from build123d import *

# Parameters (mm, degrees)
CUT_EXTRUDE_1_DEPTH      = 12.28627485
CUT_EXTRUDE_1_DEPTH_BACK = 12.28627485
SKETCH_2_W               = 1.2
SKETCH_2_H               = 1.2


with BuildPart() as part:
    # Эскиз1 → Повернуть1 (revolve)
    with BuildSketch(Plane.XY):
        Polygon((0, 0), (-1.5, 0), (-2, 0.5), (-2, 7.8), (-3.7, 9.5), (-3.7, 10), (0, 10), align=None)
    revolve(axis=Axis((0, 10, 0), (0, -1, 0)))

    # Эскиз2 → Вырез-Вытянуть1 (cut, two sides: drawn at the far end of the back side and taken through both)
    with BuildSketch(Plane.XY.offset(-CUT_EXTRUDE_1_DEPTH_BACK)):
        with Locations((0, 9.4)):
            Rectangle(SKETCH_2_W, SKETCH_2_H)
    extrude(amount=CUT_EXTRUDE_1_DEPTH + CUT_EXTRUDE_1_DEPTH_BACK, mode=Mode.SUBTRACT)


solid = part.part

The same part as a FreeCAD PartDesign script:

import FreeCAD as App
import Part
import Sketcher

V = App.Vector
Q = App.Units.Quantity


def add_polygon(sketch, points):
    """Adds a closed chain of lines whose ends are joined by coincident constraints."""
    first, n = sketch.GeometryCount, len(points)
    for a, b in zip(points, points[1:] + points[:1]):
        sketch.addGeometry(Part.LineSegment(App.Vector(*a, 0), App.Vector(*b, 0)), False)
    for i in range(n):
        sketch.addConstraint(Sketcher.Constraint("Coincident", first + i, 2, first + (i + 1) % n, 1))

doc = App.newDocument("Part")
body = doc.addObject("PartDesign::Body", "Body")

sketch1 = doc.addObject("Sketcher::SketchObject", "Sketch")
body.addObject(sketch1)
sketch1.AttachmentSupport = (doc.XY_Plane, [""])
sketch1.MapMode = "FlatFace"
add_polygon(sketch1, [(-1.5, 0), (0, 0), (0, 10), (-3.7, 10), (-3.7, 9.5), (-2, 7.8), (-2, 0.5)])
sketch1.addConstraint(Sketcher.Constraint("Horizontal", 0))
sketch1.addConstraint(Sketcher.Constraint("Vertical", 1))
sketch1.addConstraint(Sketcher.Constraint("Horizontal", 2))
sketch1.addConstraint(Sketcher.Constraint("Vertical", 3))
sketch1.addConstraint(Sketcher.Constraint("Vertical", 5))
sketch1.addConstraint(Sketcher.Constraint("Coincident", 0, 2, -1, 1))
sketch1.addConstraint(Sketcher.Constraint("Parallel", 4, 6))
sketch1.addConstraint(Sketcher.Constraint("DistanceY", 1, 1, 1, 2, 10.0))
sketch1.addConstraint(Sketcher.Constraint("Angle", 4, Q("-45 deg")))
sketch1.addConstraint(Sketcher.Constraint("DistanceX", 0, 1, 0, 2, 1.5))
sketch1.addConstraint(Sketcher.Constraint("DistanceX", 2, 2, 2, 1, 3.7))
sketch1.addConstraint(Sketcher.Constraint("DistanceY", 3, 2, 3, 1, 0.5))
sketch1.addConstraint(Sketcher.Constraint("DistanceX", 4, 2, -1, 1, 2.0))
revolution = doc.addObject("PartDesign::Revolution", "Revolution")
body.addObject(revolution)
revolution.Profile = sketch1
revolution.ReferenceAxis = (sketch1, ["V_Axis"])
revolution.Angle = 360

sketch2 = doc.addObject("Sketcher::SketchObject", "Sketch001")
body.addObject(sketch2)
sketch2.AttachmentSupport = (doc.XY_Plane, [""])
sketch2.MapMode = "FlatFace"
add_polygon(sketch2, [(-0.6, 10), (-0.6, 8.8), (0.6, 8.8), (0.6, 10)])
sketch2.addConstraint(Sketcher.Constraint("Vertical", 0))
sketch2.addConstraint(Sketcher.Constraint("Horizontal", 1))
sketch2.addConstraint(Sketcher.Constraint("Vertical", 2))
sketch2.addConstraint(Sketcher.Constraint("Horizontal", 3))
sketch2.addConstraint(Sketcher.Constraint("Equal", 3, 0))
sketch2.addConstraint(Sketcher.Constraint("DistanceX", 1, 1, 1, 2, 1.2))
sketch2.addConstraint(Sketcher.Constraint("DistanceY", -1, 1, 2, 2, 10.0))
sketch2.addConstraint(Sketcher.Constraint("DistanceX", 0, 2, -1, 1, 0.6))
pocket1 = doc.addObject("PartDesign::Pocket", "Pocket")
body.addObject(pocket1)
pocket1.Profile = sketch2
pocket1.Type = "ThroughAll"
pocket1.Midplane = True

doc.recompute()
